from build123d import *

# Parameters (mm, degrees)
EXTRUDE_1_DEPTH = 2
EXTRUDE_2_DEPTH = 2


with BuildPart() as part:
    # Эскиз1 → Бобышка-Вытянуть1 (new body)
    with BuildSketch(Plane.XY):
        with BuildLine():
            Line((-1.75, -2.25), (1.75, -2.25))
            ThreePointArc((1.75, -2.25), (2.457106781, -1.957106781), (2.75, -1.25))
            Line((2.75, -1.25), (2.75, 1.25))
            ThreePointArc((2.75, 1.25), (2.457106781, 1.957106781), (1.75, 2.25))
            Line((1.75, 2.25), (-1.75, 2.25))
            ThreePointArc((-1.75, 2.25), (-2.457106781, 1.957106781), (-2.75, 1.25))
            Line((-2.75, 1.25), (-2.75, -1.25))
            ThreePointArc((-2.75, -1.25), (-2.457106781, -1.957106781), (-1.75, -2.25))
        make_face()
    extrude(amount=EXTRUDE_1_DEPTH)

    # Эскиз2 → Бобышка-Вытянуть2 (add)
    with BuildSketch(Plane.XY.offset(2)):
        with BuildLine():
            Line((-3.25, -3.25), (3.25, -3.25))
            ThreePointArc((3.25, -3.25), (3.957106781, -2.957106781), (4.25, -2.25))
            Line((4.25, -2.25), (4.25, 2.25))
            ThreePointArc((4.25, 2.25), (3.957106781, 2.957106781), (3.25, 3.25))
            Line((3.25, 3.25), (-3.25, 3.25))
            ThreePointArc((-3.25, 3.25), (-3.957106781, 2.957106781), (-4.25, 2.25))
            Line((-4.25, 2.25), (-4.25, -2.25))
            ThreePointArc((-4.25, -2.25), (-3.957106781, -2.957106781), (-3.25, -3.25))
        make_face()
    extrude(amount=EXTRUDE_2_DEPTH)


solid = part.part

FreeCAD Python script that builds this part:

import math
import FreeCAD as App
import Part
import Sketcher
Q = App.Units.Quantity

doc = App.newDocument("Part")
body = doc.addObject("PartDesign::Body", "Body")

# Sketch on XY plane
sketch1 = doc.addObject("Sketcher::SketchObject", "Sketch")
body.addObject(sketch1)
sketch1.AttachmentSupport = (doc.XY_Plane, [""])
sketch1.MapMode = "FlatFace"
sketch1.addGeometry(Part.LineSegment(App.Vector(-1.8, -2.2, 0), App.Vector(1.8, -2.2, 0)), False)
sketch1.addGeometry(Part.ArcOfCircle(Part.Circle(App.Vector(1.7, -1.2, 0), App.Vector(0, 0, 1), 1), math.radians(-90), math.radians(0)), False)
sketch1.addGeometry(Part.LineSegment(App.Vector(2.8, -1.2, 0), App.Vector(2.8, 1.2, 0)), False)
sketch1.addGeometry(Part.ArcOfCircle(Part.Circle(App.Vector(1.7, 1.2, 0), App.Vector(0, 0, 1), 1), math.radians(0), math.radians(90)), False)
sketch1.addGeometry(Part.LineSegment(App.Vector(1.8, 2.2, 0), App.Vector(-1.8, 2.2, 0)), False)
sketch1.addGeometry(Part.ArcOfCircle(Part.Circle(App.Vector(-1.7, 1.2, 0), App.Vector(0, 0, 1), 1), math.radians(90), math.radians(180)), False)
sketch1.addGeometry(Part.LineSegment(App.Vector(-2.8, 1.2, 0), App.Vector(-2.8, -1.2, 0)), False)
sketch1.addGeometry(Part.ArcOfCircle(Part.Circle(App.Vector(-1.7, -1.2, 0), App.Vector(0, 0, 1), 1), math.radians(-180), math.radians(-90)), False)
sketch1.addConstraint(Sketcher.Constraint("Tangent", 0, 2, 1, 1))
sketch1.addConstraint(Sketcher.Constraint("Tangent", 1, 2, 2, 1))
sketch1.addConstraint(Sketcher.Constraint("Tangent", 2, 2, 3, 1))
sketch1.addConstraint(Sketcher.Constraint("Tangent", 3, 2, 4, 1))
sketch1.addConstraint(Sketcher.Constraint("Tangent", 4, 2, 5, 1))
sketch1.addConstraint(Sketcher.Constraint("Tangent", 5, 2, 6, 1))
sketch1.addConstraint(Sketcher.Constraint("Tangent", 6, 2, 7, 1))
sketch1.addConstraint(Sketcher.Constraint("Tangent", 7, 2, 0, 1))
sketch1.addConstraint(Sketcher.Constraint("Horizontal", 0))
sketch1.addConstraint(Sketcher.Constraint("Vertical", 2))
sketch1.addConstraint(Sketcher.Constraint("Horizontal", 4))
sketch1.addConstraint(Sketcher.Constraint("Vertical", 6))
sketch1.addConstraint(Sketcher.Constraint("Equal", 1, 3))
sketch1.addConstraint(Sketcher.Constraint("Equal", 3, 5))
sketch1.addConstraint(Sketcher.Constraint("Equal", 5, 7))
sketch1.addConstraint(Sketcher.Constraint("Symmetric", 1, 3, 5, 3, -1, 1))
sketch1.addConstraint(Sketcher.Constraint("Radius", 1, Q("1 mm")))
sketch1.addConstraint(Sketcher.Constraint("DistanceX", 0, 1, 0, 2, Q("3.5 mm")))
sketch1.addConstraint(Sketcher.Constraint("DistanceY", 2, 1, 2, 2, Q("2.5 mm")))
pad1 = doc.addObject("PartDesign::Pad", "Pad")
body.addObject(pad1)
pad1.Profile = sketch1
pad1.Length = 2

# Sketch on XY plane
sketch2 = doc.addObject("Sketcher::SketchObject", "Sketch001")
body.addObject(sketch2)
sketch2.AttachmentSupport = (doc.XY_Plane, [""])
sketch2.MapMode = "FlatFace"
sketch2.AttachmentOffset = App.Placement(App.Vector(0, 0, 2), App.Rotation())
sketch2.addGeometry(Part.LineSegment(App.Vector(-3.2, -3.2, 0), App.Vector(3.2, -3.2, 0)), False)
sketch2.addGeometry(Part.ArcOfCircle(Part.Circle(App.Vector(3.2, -2.2, 0), App.Vector(0, 0, 1), 1), math.radians(-90), math.radians(0)), False)
sketch2.addGeometry(Part.LineSegment(App.Vector(4.2, -2.2, 0), App.Vector(4.2, 2.2, 0)), False)
sketch2.addGeometry(Part.ArcOfCircle(Part.Circle(App.Vector(3.2, 2.2, 0), App.Vector(0, 0, 1), 1), math.radians(0), math.radians(90)), False)
sketch2.addGeometry(Part.LineSegment(App.Vector(3.2, 3.2, 0), App.Vector(-3.2, 3.2, 0)), False)
sketch2.addGeometry(Part.ArcOfCircle(Part.Circle(App.Vector(-3.2, 2.2, 0), App.Vector(0, 0, 1), 1), math.radians(90), math.radians(180)), False)
sketch2.addGeometry(Part.LineSegment(App.Vector(-4.2, 2.2, 0), App.Vector(-4.2, -2.2, 0)), False)
sketch2.addGeometry(Part.ArcOfCircle(Part.Circle(App.Vector(-3.2, -2.2, 0), App.Vector(0, 0, 1), 1), math.radians(-180), math.radians(-90)), False)
sketch2.addConstraint(Sketcher.Constraint("Tangent", 0, 2, 1, 1))
sketch2.addConstraint(Sketcher.Constraint("Tangent", 1, 2, 2, 1))
sketch2.addConstraint(Sketcher.Constraint("Tangent", 2, 2, 3, 1))
sketch2.addConstraint(Sketcher.Constraint("Tangent", 3, 2, 4, 1))
sketch2.addConstraint(Sketcher.Constraint("Tangent", 4, 2, 5, 1))
sketch2.addConstraint(Sketcher.Constraint("Tangent", 5, 2, 6, 1))
sketch2.addConstraint(Sketcher.Constraint("Tangent", 6, 2, 7, 1))
sketch2.addConstraint(Sketcher.Constraint("Tangent", 7, 2, 0, 1))
sketch2.addConstraint(Sketcher.Constraint("Horizontal", 0))
sketch2.addConstraint(Sketcher.Constraint("Vertical", 2))
sketch2.addConstraint(Sketcher.Constraint("Horizontal", 4))
sketch2.addConstraint(Sketcher.Constraint("Vertical", 6))
sketch2.addConstraint(Sketcher.Constraint("Equal", 1, 3))
sketch2.addConstraint(Sketcher.Constraint("Equal", 3, 5))
sketch2.addConstraint(Sketcher.Constraint("Equal", 5, 7))
sketch2.addConstraint(Sketcher.Constraint("Symmetric", 1, 3, 5, 3, -1, 1))
sketch2.addConstraint(Sketcher.Constraint("Radius", 1, Q("1 mm")))
sketch2.addConstraint(Sketcher.Constraint("DistanceX", 0, 1, 0, 2, Q("6.5 mm")))
sketch2.addConstraint(Sketcher.Constraint("DistanceY", 2, 1, 2, 2, Q("4.5 mm")))
pad2 = doc.addObject("PartDesign::Pad", "Pad001")
body.addObject(pad2)
pad2.Profile = sketch2
pad2.Length = 2

doc.recompute()
